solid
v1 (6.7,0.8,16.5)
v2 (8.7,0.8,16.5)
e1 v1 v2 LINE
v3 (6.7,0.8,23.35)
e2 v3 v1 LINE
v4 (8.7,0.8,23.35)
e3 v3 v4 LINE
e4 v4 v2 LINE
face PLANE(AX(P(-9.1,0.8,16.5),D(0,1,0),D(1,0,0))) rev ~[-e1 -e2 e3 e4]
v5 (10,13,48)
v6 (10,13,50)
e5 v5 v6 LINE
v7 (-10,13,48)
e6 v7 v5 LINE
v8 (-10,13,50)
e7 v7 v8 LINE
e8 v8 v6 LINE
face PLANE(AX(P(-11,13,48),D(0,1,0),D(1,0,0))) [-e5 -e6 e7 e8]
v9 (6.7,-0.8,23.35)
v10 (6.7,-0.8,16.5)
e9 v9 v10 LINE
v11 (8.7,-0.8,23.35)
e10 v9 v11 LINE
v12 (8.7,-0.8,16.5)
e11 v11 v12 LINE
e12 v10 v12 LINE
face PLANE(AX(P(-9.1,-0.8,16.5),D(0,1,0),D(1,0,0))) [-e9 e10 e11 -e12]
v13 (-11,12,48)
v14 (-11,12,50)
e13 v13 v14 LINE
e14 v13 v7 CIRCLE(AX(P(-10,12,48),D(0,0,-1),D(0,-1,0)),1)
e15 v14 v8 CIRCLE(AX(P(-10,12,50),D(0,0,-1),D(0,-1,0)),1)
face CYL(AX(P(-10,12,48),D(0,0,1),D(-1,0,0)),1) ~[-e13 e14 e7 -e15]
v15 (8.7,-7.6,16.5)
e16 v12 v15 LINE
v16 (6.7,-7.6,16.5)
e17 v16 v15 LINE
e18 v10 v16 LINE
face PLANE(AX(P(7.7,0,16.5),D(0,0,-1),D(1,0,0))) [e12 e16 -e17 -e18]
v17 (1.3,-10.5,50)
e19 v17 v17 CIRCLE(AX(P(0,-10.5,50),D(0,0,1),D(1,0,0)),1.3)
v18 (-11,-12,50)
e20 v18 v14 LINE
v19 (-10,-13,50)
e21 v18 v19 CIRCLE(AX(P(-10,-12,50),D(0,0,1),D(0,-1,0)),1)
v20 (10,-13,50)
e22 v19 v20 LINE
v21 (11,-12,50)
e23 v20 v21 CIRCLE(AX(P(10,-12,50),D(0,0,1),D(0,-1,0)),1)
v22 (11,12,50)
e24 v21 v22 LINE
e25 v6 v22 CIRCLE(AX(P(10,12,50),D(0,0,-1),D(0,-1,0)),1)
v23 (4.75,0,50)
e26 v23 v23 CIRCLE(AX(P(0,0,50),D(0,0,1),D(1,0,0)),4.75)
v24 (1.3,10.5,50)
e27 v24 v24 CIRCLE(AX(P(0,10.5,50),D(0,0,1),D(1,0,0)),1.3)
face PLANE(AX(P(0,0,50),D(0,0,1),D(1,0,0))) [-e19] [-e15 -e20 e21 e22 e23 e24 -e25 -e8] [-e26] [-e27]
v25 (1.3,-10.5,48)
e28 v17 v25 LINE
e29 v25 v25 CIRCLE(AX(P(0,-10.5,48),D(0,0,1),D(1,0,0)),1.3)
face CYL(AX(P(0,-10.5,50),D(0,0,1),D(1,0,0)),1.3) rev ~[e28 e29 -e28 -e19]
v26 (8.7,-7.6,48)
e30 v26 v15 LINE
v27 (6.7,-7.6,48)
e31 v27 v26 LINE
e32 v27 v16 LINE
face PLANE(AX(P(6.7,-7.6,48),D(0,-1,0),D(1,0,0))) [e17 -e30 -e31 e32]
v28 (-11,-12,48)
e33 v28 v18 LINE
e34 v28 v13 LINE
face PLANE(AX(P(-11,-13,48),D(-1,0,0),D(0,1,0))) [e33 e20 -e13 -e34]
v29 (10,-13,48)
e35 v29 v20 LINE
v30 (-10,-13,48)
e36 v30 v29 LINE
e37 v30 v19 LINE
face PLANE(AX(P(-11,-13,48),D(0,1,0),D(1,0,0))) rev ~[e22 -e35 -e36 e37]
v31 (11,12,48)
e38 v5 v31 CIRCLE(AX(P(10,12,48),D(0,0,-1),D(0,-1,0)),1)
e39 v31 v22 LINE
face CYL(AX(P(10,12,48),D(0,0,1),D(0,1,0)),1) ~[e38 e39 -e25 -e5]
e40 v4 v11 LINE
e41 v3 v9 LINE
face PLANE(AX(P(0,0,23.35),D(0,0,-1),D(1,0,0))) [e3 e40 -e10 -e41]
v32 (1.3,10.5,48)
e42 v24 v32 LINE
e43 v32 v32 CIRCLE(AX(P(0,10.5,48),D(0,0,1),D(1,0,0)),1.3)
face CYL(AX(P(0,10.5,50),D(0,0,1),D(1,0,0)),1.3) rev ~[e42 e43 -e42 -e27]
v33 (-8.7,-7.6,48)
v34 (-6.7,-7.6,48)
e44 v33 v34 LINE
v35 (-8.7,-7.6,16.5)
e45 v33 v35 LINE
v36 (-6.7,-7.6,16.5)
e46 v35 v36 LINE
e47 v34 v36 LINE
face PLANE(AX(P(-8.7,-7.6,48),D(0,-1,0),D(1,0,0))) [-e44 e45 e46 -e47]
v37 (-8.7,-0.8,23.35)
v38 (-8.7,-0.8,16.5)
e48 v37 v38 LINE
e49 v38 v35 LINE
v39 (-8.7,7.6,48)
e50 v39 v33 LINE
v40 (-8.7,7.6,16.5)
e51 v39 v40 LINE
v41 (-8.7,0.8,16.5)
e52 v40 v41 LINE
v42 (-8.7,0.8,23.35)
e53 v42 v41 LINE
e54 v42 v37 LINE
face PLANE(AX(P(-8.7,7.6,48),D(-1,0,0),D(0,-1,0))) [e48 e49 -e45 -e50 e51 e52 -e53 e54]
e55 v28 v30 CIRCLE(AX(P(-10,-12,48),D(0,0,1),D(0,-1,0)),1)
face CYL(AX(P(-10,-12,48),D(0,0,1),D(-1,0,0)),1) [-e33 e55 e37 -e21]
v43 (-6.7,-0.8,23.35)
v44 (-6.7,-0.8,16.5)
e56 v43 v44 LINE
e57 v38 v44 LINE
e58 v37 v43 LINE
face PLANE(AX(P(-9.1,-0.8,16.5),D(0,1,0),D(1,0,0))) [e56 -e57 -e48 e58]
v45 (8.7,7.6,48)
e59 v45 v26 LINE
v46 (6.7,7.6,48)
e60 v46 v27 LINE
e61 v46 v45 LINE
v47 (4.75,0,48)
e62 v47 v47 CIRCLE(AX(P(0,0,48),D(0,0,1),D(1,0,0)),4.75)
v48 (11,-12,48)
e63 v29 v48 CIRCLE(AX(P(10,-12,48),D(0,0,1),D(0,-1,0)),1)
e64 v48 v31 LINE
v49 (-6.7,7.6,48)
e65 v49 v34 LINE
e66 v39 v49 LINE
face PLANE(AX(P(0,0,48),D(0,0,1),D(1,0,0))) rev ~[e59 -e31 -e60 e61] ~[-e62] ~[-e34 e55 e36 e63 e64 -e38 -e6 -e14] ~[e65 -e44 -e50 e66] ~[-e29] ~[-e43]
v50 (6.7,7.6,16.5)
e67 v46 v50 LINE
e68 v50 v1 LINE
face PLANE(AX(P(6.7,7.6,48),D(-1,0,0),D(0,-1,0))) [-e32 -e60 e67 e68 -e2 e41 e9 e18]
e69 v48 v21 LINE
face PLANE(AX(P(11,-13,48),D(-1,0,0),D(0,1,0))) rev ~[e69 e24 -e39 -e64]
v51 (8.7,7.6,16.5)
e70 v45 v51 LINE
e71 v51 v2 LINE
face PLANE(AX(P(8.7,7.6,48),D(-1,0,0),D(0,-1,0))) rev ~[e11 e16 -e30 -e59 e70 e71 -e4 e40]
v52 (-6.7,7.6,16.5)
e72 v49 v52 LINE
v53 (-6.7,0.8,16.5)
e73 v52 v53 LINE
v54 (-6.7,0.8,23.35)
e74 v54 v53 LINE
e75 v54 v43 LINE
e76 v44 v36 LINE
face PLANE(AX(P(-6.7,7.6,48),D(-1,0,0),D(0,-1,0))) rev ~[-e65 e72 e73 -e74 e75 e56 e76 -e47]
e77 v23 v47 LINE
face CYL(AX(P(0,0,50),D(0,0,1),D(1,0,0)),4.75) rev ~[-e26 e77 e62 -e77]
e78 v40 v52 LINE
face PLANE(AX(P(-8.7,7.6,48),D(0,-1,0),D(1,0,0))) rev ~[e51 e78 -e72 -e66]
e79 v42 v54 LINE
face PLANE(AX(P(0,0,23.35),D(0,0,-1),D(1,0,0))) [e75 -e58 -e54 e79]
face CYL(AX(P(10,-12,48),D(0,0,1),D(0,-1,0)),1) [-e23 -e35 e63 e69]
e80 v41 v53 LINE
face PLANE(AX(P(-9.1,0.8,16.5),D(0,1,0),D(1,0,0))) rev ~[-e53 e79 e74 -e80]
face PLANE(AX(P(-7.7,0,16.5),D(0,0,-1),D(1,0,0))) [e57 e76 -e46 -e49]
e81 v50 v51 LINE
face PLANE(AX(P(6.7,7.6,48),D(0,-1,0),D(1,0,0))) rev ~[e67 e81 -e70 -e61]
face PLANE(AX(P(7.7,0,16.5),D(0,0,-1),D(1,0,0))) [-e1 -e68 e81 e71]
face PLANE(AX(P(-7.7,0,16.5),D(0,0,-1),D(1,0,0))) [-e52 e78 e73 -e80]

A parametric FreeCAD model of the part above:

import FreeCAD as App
import Part
import Sketcher


def edges_at(feature, points):
    """Names of the edges that pass closest to the given points."""
    edges = feature.Shape.Edges
    near = lambda p: min(range(len(edges)), key=lambda i: edges[i].distToShape(Part.Vertex(*p))[0])
    return sorted({f"Edge{near(p) + 1}" for p in points})


def add_polygon(sketch, points):
    """Adds a closed chain of lines whose ends are joined by coincident constraints."""
    first, n = sketch.GeometryCount, len(points)
    for a, b in zip(points, points[1:] + points[:1]):
        sketch.addGeometry(Part.LineSegment(App.Vector(*a, 0), App.Vector(*b, 0)), False)
    for i in range(n):
        sketch.addConstraint(Sketcher.Constraint("Coincident", first + i, 2, first + (i + 1) % n, 1))

doc = App.newDocument("Part")
body = doc.addObject("PartDesign::Body", "Body")

# Sketch on XY plane
sketch1 = body.newObject("Sketcher::SketchObject", "Sketch")
sketch1.AttachmentSupport = (doc.getObject("XY_Plane"), [""])
sketch1.MapMode = "FlatFace"
add_polygon(sketch1, [(-11, 13), (-11, -13), (11, -13), (11, 13)])  # lines 0-3
sketch1.addConstraint(Sketcher.Constraint("Vertical", 0))
sketch1.addConstraint(Sketcher.Constraint("Horizontal", 1))
sketch1.addConstraint(Sketcher.Constraint("Vertical", 2))
sketch1.addConstraint(Sketcher.Constraint("Horizontal", 3))
sketch1.addConstraint(Sketcher.Constraint("Symmetric", 0, 2, 2, 2, -1, 1))
sketch1.addConstraint(Sketcher.Constraint("DistanceX", 1, 1, 1, 2, 22.0))
sketch1.addConstraint(Sketcher.Constraint("DistanceY", 0, 2, 0, 1, 26.0))
pad1 = body.newObject("PartDesign::Pad", "Pad")
pad1.Profile = sketch1
pad1.Length = 2

# Sketch on XY plane
sketch2 = body.newObject("Sketcher::SketchObject", "Sketch001")
sketch2.AttachmentSupport = (doc.getObject("XY_Plane"), [""])
sketch2.MapMode = "FlatFace"
sketch2.AttachmentOffset = App.Placement(App.Vector(0, 0, 2), App.Rotation())
sketch2.addGeometry(Part.Circle(App.Vector(0, 0, 0), App.Vector(0, 0, 1), 4.8), False)
sketch2.addConstraint(Sketcher.Constraint("Coincident", 0, 3, -1, 1))
sketch2.addConstraint(Sketcher.Constraint("Diameter", 0, 9.5))
pocket1 = body.newObject("PartDesign::Pocket", "Pocket")
pocket1.Profile = sketch2
pocket1.Type = "ThroughAll"

# Sketch on XY plane
sketch3 = body.newObject("Sketcher::SketchObject", "Sketch002")
sketch3.AttachmentSupport = (doc.getObject("XY_Plane"), [""])
sketch3.MapMode = "FlatFace"
add_polygon(sketch3, [(-8.7, -7.6), (-8.7, 7.6), (-6.7, 7.6), (-6.7, -7.6)])  # lines 0-3
add_polygon(sketch3, [(6.7, -7.6), (6.7, 7.6), (8.7, 7.6), (8.7, -7.6)])  # lines 4-7
sketch3.addConstraint(Sketcher.Constraint("Vertical", 0))
sketch3.addConstraint(Sketcher.Constraint("Horizontal", 1))
sketch3.addConstraint(Sketcher.Constraint("Vertical", 2))
sketch3.addConstraint(Sketcher.Constraint("Horizontal", 3))
sketch3.addConstraint(Sketcher.Constraint("Vertical", 4))
sketch3.addConstraint(Sketcher.Constraint("Horizontal", 5))
sketch3.addConstraint(Sketcher.Constraint("Vertical", 6))
sketch3.addConstraint(Sketcher.Constraint("Horizontal", 7))
sketch3.addConstraint(Sketcher.Constraint("Symmetric", 2, 2, 4, 2, -1, 1))
sketch3.addConstraint(Sketcher.Constraint("Symmetric", 0, 2, 6, 2, -1, 1))
sketch3.addConstraint(Sketcher.Constraint("Horizontal", 1, 2, 4, 2))
sketch3.addConstraint(Sketcher.Constraint("DistanceX", 1, 1, 1, 2, 2.0))
sketch3.addConstraint(Sketcher.Constraint("DistanceY", 0, 1, 0, 2, 15.2))
sketch3.addConstraint(Sketcher.Constraint("DistanceX", 0, 2, -1, 1, 8.7))
pad2 = body.newObject("PartDesign::Pad", "Pad001")
pad2.Profile = sketch3
pad2.Length = 31.5
pad2.Reversed = True

# Sketch on XY plane
sketch4 = body.newObject("Sketcher::SketchObject", "Sketch003")
sketch4.AttachmentSupport = (doc.getObject("XY_Plane"), [""])
sketch4.MapMode = "FlatFace"
sketch4.AttachmentOffset = App.Placement(App.Vector(0, 0, 2), App.Rotation())
sketch4.addGeometry(Part.Circle(App.Vector(0, 10.5, 0), App.Vector(0, 0, 1), 1.3), False)
sketch4.addGeometry(Part.Circle(App.Vector(0, -10.5, 0), App.Vector(0, 0, 1), 1.3), False)
sketch4.addConstraint(Sketcher.Constraint("Equal", 0, 1))
sketch4.addConstraint(Sketcher.Constraint("Symmetric", 0, 3, 1, 3, -1, 1))
sketch4.addConstraint(Sketcher.Constraint("PointOnObject", 0, 3, -2))
sketch4.addConstraint(Sketcher.Constraint("Diameter", 0, 2.6))
sketch4.addConstraint(Sketcher.Constraint("DistanceY", 1, 3, 0, 3, 21.0))
pocket2 = body.newObject("PartDesign::Pocket", "Pocket001")
pocket2.Profile = sketch4
pocket2.Type = "ThroughAll"

# Sketch on XY plane
sketch5 = body.newObject("Sketcher::SketchObject", "Sketch004")
sketch5.AttachmentSupport = (doc.getObject("XY_Plane"), [""])
sketch5.MapMode = "FlatFace"
sketch5.AttachmentOffset = App.Placement(App.Vector(0, 0, -31.5), App.Rotation())
add_polygon(sketch5, [(-9.1, -0.8), (-9.1, 0.8), (9.1, 0.8), (9.1, -0.8)])  # lines 0-3
sketch5.addConstraint(Sketcher.Constraint("Vertical", 0))
sketch5.addConstraint(Sketcher.Constraint("Horizontal", 1))
sketch5.addConstraint(Sketcher.Constraint("Vertical", 2))
sketch5.addConstraint(Sketcher.Constraint("Horizontal", 3))
sketch5.addConstraint(Sketcher.Constraint("Symmetric", 0, 2, 2, 2, -1, 1))
sketch5.addConstraint(Sketcher.Constraint("DistanceX", 1, 1, 1, 2, 18.2))
sketch5.addConstraint(Sketcher.Constraint("DistanceY", 0, 1, 0, 2, 1.6))
pocket3 = body.newObject("PartDesign::Pocket", "Pocket002")
pocket3.Profile = sketch5
pocket3.Length = 6.85
pocket3.Reversed = True
doc.recompute()

fillet = body.newObject("PartDesign::Fillet", "Fillet")
fillet.Base = (pocket3, edges_at(pocket3, [
    (11, -13, 1),
    (11, 13, 1),
    (-11, 13, 1),
    (-11, -13, 1),
]))
fillet.Radius = 1
body2 = doc.addObject("PartDesign::Body", "Body001")
doc.recompute()

body.Placement = App.Placement(App.Vector(0, 0, 48), App.Rotation(App.Vector(0, 0, 1), 0))
boolean = body2.newObject("PartDesign::Boolean", "Boolean")
boolean.Type = "Fuse"
boolean.addObjects([body])

doc.recompute()
